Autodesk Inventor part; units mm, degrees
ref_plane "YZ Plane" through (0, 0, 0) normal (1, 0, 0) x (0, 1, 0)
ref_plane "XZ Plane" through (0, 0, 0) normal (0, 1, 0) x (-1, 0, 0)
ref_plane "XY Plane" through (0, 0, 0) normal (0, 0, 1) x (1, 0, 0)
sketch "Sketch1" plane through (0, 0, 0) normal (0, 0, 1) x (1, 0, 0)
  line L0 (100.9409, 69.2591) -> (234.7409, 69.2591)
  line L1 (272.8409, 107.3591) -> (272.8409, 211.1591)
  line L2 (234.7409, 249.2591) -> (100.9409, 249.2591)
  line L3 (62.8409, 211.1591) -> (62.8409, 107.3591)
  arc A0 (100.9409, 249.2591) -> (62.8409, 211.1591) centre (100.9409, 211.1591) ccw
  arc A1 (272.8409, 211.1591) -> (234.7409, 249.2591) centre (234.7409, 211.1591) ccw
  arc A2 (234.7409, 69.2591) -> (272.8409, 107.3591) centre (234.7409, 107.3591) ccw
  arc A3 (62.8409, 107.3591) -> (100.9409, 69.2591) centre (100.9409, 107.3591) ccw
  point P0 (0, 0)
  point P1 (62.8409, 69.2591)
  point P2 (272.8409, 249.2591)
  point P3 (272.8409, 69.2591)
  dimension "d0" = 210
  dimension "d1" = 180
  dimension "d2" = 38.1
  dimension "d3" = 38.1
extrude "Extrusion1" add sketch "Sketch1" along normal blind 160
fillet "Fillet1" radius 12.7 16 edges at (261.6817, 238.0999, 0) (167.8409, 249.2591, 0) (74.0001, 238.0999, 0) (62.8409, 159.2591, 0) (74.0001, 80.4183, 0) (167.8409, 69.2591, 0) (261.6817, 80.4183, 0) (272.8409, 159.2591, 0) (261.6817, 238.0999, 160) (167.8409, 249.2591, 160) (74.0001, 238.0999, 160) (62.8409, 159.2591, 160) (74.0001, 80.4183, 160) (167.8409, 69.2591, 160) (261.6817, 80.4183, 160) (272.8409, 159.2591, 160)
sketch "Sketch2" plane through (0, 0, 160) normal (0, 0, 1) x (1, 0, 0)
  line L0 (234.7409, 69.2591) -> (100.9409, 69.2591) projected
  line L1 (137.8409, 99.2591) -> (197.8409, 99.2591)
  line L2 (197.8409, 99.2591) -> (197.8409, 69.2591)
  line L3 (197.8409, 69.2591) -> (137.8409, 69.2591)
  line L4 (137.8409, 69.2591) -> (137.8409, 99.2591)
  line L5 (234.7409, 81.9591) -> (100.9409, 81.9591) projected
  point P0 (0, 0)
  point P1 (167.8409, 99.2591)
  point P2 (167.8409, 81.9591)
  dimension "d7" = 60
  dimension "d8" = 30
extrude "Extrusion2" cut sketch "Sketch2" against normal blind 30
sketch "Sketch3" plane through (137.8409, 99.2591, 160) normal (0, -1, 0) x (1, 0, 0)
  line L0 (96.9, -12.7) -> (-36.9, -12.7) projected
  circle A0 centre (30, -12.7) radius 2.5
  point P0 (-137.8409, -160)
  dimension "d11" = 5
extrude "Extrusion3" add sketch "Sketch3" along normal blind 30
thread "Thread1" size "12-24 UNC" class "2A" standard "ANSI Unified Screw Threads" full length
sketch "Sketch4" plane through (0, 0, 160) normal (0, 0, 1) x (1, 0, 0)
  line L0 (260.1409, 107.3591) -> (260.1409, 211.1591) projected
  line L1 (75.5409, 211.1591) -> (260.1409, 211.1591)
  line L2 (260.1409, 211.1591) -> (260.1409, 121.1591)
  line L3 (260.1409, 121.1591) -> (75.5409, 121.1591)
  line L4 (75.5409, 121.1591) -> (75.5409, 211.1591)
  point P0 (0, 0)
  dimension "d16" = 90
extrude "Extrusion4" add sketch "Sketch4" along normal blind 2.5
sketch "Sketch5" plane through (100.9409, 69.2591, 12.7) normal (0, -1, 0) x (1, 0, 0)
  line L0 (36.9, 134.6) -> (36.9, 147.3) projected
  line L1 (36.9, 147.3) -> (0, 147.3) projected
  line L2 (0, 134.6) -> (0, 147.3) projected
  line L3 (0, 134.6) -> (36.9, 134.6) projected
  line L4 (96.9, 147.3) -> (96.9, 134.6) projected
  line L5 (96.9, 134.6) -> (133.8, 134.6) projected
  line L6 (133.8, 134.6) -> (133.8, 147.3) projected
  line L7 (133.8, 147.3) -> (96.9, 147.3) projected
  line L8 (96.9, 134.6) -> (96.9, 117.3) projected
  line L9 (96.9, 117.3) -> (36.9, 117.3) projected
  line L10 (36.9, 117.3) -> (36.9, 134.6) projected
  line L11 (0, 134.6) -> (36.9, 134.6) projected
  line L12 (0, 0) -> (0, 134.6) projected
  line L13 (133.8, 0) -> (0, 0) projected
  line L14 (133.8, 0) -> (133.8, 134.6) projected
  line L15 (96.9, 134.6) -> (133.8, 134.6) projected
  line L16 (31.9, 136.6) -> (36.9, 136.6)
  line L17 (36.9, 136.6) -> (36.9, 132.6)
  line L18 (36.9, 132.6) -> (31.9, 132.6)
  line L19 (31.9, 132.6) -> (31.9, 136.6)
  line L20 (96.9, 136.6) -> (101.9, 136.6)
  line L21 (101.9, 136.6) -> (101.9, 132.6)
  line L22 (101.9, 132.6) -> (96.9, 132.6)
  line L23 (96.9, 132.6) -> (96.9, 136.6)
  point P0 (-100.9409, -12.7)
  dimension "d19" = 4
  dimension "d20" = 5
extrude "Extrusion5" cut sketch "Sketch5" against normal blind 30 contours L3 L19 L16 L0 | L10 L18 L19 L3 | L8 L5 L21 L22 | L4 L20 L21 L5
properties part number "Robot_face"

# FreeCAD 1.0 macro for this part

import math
import FreeCAD as App
import Part
import Sketcher
from FreeCAD import Vector
Q = App.Units.Quantity


def edges_at(feature, points):
    """Names of the edges that pass closest to the given points."""
    edges = feature.Shape.Edges
    near = lambda p: min(range(len(edges)), key=lambda i: edges[i].distToShape(Part.Vertex(*p))[0])
    return sorted({f"Edge{near(p) + 1}" for p in points})


def add_polygon(sketch, points):
    """Adds a closed chain of lines whose ends are joined by coincident constraints."""
    first, n = sketch.GeometryCount, len(points)
    for a, b in zip(points, points[1:] + points[:1]):
        sketch.addGeometry(Part.LineSegment(App.Vector(*a, 0), App.Vector(*b, 0)), False)
    for i in range(n):
        sketch.addConstraint(Sketcher.Constraint("Coincident", first + i, 2, first + (i + 1) % n, 1))

doc = App.newDocument("Part")
body = doc.addObject("PartDesign::Body", "Body")

# Sketch on XY plane
sketch1 = body.newObject("Sketcher::SketchObject", "Sketch")
sketch1.AttachmentSupport = (doc.getObject("XY_Plane"), [""])
sketch1.MapMode = "FlatFace"
sketch1.addGeometry(Part.ArcOfCircle(Part.Circle(Vector(101, 107, 0), Vector(0, 0, 1), 38), math.radians(180), math.radians(270)), False)
sketch1.addGeometry(Part.LineSegment(Vector(101, 69, 0), Vector(235, 69, 0)), False)
sketch1.addGeometry(Part.ArcOfCircle(Part.Circle(Vector(235, 107, 0), Vector(0, 0, 1), 38), math.radians(-90), math.radians(0)), False)
sketch1.addGeometry(Part.LineSegment(Vector(273, 107, 0), Vector(273, 211, 0)), False)
sketch1.addGeometry(Part.ArcOfCircle(Part.Circle(Vector(235, 211, 0), Vector(0, 0, 1), 38), math.radians(0), math.radians(90)), False)
sketch1.addGeometry(Part.LineSegment(Vector(235, 249, 0), Vector(101, 249, 0)), False)
sketch1.addGeometry(Part.ArcOfCircle(Part.Circle(Vector(101, 211, 0), Vector(0, 0, 1), 38), math.radians(90), math.radians(180)), False)
sketch1.addGeometry(Part.LineSegment(Vector(63, 211, 0), Vector(63, 107, 0)), False)
sketch1.addConstraint(Sketcher.Constraint("Tangent", 0, 2, 1, 1))
sketch1.addConstraint(Sketcher.Constraint("Tangent", 1, 2, 2, 1))
sketch1.addConstraint(Sketcher.Constraint("Tangent", 2, 2, 3, 1))
sketch1.addConstraint(Sketcher.Constraint("Tangent", 3, 2, 4, 1))
sketch1.addConstraint(Sketcher.Constraint("Tangent", 4, 2, 5, 1))
sketch1.addConstraint(Sketcher.Constraint("Tangent", 5, 2, 6, 1))
sketch1.addConstraint(Sketcher.Constraint("Tangent", 6, 2, 7, 1))
sketch1.addConstraint(Sketcher.Constraint("Tangent", 7, 2, 0, 1))
sketch1.addConstraint(Sketcher.Constraint("Horizontal", 1))
sketch1.addConstraint(Sketcher.Constraint("Vertical", 3))
sketch1.addConstraint(Sketcher.Constraint("Horizontal", 5))
sketch1.addConstraint(Sketcher.Constraint("Vertical", 7))
sketch1.addConstraint(Sketcher.Constraint("Equal", 0, 2))
sketch1.addConstraint(Sketcher.Constraint("Equal", 2, 4))
sketch1.addConstraint(Sketcher.Constraint("Equal", 4, 6))
sketch1.addConstraint(Sketcher.Constraint("Radius", 0, Q("38.1 mm")))
sketch1.addConstraint(Sketcher.Constraint("DistanceX", 1, 1, 1, 2, Q("133.8 mm")))
sketch1.addConstraint(Sketcher.Constraint("DistanceY", 3, 1, 3, 2, Q("103.8 mm")))
sketch1.addConstraint(Sketcher.Constraint("DistanceX", -1, 1, 0, 3, Q("100.941 mm")))
sketch1.addConstraint(Sketcher.Constraint("DistanceY", -1, 1, 0, 3, Q("107.359 mm")))
pad1 = body.newObject("PartDesign::Pad", "Pad")
pad1.Profile = sketch1
pad1.Length = 160
doc.recompute()

fillet = body.newObject("PartDesign::Fillet", "Fillet")
fillet.Base = (pad1, edges_at(pad1, [
    (261.682, 238.1, 0),
    (167.841, 249.259, 0),
    (74, 238.1, 0),
    (62.841, 159.259, 0),
    (74, 80.418, 0),
    (167.841, 69.259, 0),
    (261.682, 80.418, 0),
    (272.841, 159.259, 0),
    (261.682, 238.1, 160),
    (167.841, 249.259, 160),
    (74, 238.1, 160),
    (62.841, 159.259, 160),
    (74, 80.418, 160),
    (167.841, 69.259, 160),
    (261.682, 80.418, 160),
    (272.841, 159.259, 160),
]))
fillet.Radius = 12.7

# Sketch on XY plane
sketch2 = body.newObject("Sketcher::SketchObject", "Sketch001")
sketch2.AttachmentSupport = (doc.getObject("XY_Plane"), [""])
sketch2.MapMode = "FlatFace"
sketch2.AttachmentOffset = App.Placement(Vector(0, 0, 160), App.Rotation())
add_polygon(sketch2, [(138, 69), (198, 69), (198, 99), (138, 99)])  # lines 0-3
sketch2.addConstraint(Sketcher.Constraint("Horizontal", 0))
sketch2.addConstraint(Sketcher.Constraint("Vertical", 1))
sketch2.addConstraint(Sketcher.Constraint("Horizontal", 2))
sketch2.addConstraint(Sketcher.Constraint("Vertical", 3))
sketch2.addConstraint(Sketcher.Constraint("DistanceX", 0, 1, 0, 2, Q("60 mm")))
sketch2.addConstraint(Sketcher.Constraint("DistanceY", 1, 1, 1, 2, Q("30 mm")))
sketch2.addConstraint(Sketcher.Constraint("DistanceX", -1, 1, 0, 2, Q("197.841 mm")))
sketch2.addConstraint(Sketcher.Constraint("DistanceY", -1, 1, 0, 2, Q("69.259 mm")))
pocket1 = body.newObject("PartDesign::Pocket", "Pocket")
pocket1.Profile = sketch2
pocket1.Length = 30

# Sketch on XZ plane
sketch3 = body.newObject("Sketcher::SketchObject", "Sketch002")
sketch3.AttachmentSupport = (doc.getObject("XZ_Plane"), [""])
sketch3.MapMode = "FlatFace"
sketch3.AttachmentOffset = App.Placement(Vector(0, 0, -99.2591), App.Rotation())
sketch3.addGeometry(Part.Circle(Vector(167.8, 147.3, 0), Vector(0, 0, 1), 2.5), False)
sketch3.addConstraint(Sketcher.Constraint("Diameter", 0, Q("5 mm")))
sketch3.addConstraint(Sketcher.Constraint("DistanceY", -1, 1, 0, 3, Q("147.3 mm")))
sketch3.addConstraint(Sketcher.Constraint("DistanceX", -1, 1, 0, 3, Q("167.841 mm")))
pad2 = body.newObject("PartDesign::Pad", "Pad001")
pad2.Profile = sketch3
pad2.Length = 30

# Sketch on XY plane
sketch4 = body.newObject("Sketcher::SketchObject", "Sketch003")
sketch4.AttachmentSupport = (doc.getObject("XY_Plane"), [""])
sketch4.MapMode = "FlatFace"
sketch4.AttachmentOffset = App.Placement(Vector(0, 0, 160), App.Rotation())
add_polygon(sketch4, [(76, 121), (260, 121), (260, 211), (76, 211)])  # lines 0-3
sketch4.addConstraint(Sketcher.Constraint("Horizontal", 0))
sketch4.addConstraint(Sketcher.Constraint("Vertical", 1))
sketch4.addConstraint(Sketcher.Constraint("Horizontal", 2))
sketch4.addConstraint(Sketcher.Constraint("Vertical", 3))
sketch4.addConstraint(Sketcher.Constraint("DistanceY", 1, 1, 1, 2, Q("90 mm")))
sketch4.addConstraint(Sketcher.Constraint("DistanceX", 0, 1, 0, 2, Q("184.6 mm")))
sketch4.addConstraint(Sketcher.Constraint("DistanceX", -1, 1, 0, 2, Q("260.141 mm")))
sketch4.addConstraint(Sketcher.Constraint("DistanceY", -1, 1, 0, 2, Q("121.159 mm")))
pad3 = body.newObject("PartDesign::Pad", "Pad002")
pad3.Profile = sketch4
pad3.Length = 2.5

# Sketch on XZ plane
sketch5 = body.newObject("Sketcher::SketchObject", "Sketch004")
sketch5.AttachmentSupport = (doc.getObject("XZ_Plane"), [""])
sketch5.MapMode = "FlatFace"
sketch5.AttachmentOffset = App.Placement(Vector(0, 0, -69.2591), App.Rotation())
add_polygon(sketch5, [(132.8, 149.3), (132.8, 145.3), (137.8, 145.3), (137.8, 149.3)])  # lines 0-3
add_polygon(sketch5, [(197.8, 145.3), (202.8, 145.3), (202.8, 149.3), (197.8, 149.3)])  # lines 4-7
sketch5.addConstraint(Sketcher.Constraint("Vertical", 0))
sketch5.addConstraint(Sketcher.Constraint("Horizontal", 1))
sketch5.addConstraint(Sketcher.Constraint("Vertical", 2))
sketch5.addConstraint(Sketcher.Constraint("Horizontal", 3))
sketch5.addConstraint(Sketcher.Constraint("Horizontal", 4))
sketch5.addConstraint(Sketcher.Constraint("Vertical", 5))
sketch5.addConstraint(Sketcher.Constraint("Horizontal", 6))
sketch5.addConstraint(Sketcher.Constraint("Vertical", 7))
sketch5.addConstraint(Sketcher.Constraint("Horizontal", 1, 2, 4, 2))
sketch5.addConstraint(Sketcher.Constraint("Horizontal", 3, 2, 5, 2))
sketch5.addConstraint(Sketcher.Constraint("Equal", 3, 4))
sketch5.addConstraint(Sketcher.Constraint("DistanceX", 1, 1, 1, 2, Q("5 mm")))
sketch5.addConstraint(Sketcher.Constraint("DistanceY", 0, 2, 0, 1, Q("4 mm")))
sketch5.addConstraint(Sketcher.Constraint("DistanceX", 1, 2, 4, 2, Q("65 mm")))
sketch5.addConstraint(Sketcher.Constraint("DistanceY", -1, 1, 0, 2, Q("145.3 mm")))
sketch5.addConstraint(Sketcher.Constraint("DistanceX", -1, 1, 0, 2, Q("132.841 mm")))
pocket2 = body.newObject("PartDesign::Pocket", "Pocket001")
pocket2.Profile = sketch5
pocket2.Length = 30

doc.recompute()
